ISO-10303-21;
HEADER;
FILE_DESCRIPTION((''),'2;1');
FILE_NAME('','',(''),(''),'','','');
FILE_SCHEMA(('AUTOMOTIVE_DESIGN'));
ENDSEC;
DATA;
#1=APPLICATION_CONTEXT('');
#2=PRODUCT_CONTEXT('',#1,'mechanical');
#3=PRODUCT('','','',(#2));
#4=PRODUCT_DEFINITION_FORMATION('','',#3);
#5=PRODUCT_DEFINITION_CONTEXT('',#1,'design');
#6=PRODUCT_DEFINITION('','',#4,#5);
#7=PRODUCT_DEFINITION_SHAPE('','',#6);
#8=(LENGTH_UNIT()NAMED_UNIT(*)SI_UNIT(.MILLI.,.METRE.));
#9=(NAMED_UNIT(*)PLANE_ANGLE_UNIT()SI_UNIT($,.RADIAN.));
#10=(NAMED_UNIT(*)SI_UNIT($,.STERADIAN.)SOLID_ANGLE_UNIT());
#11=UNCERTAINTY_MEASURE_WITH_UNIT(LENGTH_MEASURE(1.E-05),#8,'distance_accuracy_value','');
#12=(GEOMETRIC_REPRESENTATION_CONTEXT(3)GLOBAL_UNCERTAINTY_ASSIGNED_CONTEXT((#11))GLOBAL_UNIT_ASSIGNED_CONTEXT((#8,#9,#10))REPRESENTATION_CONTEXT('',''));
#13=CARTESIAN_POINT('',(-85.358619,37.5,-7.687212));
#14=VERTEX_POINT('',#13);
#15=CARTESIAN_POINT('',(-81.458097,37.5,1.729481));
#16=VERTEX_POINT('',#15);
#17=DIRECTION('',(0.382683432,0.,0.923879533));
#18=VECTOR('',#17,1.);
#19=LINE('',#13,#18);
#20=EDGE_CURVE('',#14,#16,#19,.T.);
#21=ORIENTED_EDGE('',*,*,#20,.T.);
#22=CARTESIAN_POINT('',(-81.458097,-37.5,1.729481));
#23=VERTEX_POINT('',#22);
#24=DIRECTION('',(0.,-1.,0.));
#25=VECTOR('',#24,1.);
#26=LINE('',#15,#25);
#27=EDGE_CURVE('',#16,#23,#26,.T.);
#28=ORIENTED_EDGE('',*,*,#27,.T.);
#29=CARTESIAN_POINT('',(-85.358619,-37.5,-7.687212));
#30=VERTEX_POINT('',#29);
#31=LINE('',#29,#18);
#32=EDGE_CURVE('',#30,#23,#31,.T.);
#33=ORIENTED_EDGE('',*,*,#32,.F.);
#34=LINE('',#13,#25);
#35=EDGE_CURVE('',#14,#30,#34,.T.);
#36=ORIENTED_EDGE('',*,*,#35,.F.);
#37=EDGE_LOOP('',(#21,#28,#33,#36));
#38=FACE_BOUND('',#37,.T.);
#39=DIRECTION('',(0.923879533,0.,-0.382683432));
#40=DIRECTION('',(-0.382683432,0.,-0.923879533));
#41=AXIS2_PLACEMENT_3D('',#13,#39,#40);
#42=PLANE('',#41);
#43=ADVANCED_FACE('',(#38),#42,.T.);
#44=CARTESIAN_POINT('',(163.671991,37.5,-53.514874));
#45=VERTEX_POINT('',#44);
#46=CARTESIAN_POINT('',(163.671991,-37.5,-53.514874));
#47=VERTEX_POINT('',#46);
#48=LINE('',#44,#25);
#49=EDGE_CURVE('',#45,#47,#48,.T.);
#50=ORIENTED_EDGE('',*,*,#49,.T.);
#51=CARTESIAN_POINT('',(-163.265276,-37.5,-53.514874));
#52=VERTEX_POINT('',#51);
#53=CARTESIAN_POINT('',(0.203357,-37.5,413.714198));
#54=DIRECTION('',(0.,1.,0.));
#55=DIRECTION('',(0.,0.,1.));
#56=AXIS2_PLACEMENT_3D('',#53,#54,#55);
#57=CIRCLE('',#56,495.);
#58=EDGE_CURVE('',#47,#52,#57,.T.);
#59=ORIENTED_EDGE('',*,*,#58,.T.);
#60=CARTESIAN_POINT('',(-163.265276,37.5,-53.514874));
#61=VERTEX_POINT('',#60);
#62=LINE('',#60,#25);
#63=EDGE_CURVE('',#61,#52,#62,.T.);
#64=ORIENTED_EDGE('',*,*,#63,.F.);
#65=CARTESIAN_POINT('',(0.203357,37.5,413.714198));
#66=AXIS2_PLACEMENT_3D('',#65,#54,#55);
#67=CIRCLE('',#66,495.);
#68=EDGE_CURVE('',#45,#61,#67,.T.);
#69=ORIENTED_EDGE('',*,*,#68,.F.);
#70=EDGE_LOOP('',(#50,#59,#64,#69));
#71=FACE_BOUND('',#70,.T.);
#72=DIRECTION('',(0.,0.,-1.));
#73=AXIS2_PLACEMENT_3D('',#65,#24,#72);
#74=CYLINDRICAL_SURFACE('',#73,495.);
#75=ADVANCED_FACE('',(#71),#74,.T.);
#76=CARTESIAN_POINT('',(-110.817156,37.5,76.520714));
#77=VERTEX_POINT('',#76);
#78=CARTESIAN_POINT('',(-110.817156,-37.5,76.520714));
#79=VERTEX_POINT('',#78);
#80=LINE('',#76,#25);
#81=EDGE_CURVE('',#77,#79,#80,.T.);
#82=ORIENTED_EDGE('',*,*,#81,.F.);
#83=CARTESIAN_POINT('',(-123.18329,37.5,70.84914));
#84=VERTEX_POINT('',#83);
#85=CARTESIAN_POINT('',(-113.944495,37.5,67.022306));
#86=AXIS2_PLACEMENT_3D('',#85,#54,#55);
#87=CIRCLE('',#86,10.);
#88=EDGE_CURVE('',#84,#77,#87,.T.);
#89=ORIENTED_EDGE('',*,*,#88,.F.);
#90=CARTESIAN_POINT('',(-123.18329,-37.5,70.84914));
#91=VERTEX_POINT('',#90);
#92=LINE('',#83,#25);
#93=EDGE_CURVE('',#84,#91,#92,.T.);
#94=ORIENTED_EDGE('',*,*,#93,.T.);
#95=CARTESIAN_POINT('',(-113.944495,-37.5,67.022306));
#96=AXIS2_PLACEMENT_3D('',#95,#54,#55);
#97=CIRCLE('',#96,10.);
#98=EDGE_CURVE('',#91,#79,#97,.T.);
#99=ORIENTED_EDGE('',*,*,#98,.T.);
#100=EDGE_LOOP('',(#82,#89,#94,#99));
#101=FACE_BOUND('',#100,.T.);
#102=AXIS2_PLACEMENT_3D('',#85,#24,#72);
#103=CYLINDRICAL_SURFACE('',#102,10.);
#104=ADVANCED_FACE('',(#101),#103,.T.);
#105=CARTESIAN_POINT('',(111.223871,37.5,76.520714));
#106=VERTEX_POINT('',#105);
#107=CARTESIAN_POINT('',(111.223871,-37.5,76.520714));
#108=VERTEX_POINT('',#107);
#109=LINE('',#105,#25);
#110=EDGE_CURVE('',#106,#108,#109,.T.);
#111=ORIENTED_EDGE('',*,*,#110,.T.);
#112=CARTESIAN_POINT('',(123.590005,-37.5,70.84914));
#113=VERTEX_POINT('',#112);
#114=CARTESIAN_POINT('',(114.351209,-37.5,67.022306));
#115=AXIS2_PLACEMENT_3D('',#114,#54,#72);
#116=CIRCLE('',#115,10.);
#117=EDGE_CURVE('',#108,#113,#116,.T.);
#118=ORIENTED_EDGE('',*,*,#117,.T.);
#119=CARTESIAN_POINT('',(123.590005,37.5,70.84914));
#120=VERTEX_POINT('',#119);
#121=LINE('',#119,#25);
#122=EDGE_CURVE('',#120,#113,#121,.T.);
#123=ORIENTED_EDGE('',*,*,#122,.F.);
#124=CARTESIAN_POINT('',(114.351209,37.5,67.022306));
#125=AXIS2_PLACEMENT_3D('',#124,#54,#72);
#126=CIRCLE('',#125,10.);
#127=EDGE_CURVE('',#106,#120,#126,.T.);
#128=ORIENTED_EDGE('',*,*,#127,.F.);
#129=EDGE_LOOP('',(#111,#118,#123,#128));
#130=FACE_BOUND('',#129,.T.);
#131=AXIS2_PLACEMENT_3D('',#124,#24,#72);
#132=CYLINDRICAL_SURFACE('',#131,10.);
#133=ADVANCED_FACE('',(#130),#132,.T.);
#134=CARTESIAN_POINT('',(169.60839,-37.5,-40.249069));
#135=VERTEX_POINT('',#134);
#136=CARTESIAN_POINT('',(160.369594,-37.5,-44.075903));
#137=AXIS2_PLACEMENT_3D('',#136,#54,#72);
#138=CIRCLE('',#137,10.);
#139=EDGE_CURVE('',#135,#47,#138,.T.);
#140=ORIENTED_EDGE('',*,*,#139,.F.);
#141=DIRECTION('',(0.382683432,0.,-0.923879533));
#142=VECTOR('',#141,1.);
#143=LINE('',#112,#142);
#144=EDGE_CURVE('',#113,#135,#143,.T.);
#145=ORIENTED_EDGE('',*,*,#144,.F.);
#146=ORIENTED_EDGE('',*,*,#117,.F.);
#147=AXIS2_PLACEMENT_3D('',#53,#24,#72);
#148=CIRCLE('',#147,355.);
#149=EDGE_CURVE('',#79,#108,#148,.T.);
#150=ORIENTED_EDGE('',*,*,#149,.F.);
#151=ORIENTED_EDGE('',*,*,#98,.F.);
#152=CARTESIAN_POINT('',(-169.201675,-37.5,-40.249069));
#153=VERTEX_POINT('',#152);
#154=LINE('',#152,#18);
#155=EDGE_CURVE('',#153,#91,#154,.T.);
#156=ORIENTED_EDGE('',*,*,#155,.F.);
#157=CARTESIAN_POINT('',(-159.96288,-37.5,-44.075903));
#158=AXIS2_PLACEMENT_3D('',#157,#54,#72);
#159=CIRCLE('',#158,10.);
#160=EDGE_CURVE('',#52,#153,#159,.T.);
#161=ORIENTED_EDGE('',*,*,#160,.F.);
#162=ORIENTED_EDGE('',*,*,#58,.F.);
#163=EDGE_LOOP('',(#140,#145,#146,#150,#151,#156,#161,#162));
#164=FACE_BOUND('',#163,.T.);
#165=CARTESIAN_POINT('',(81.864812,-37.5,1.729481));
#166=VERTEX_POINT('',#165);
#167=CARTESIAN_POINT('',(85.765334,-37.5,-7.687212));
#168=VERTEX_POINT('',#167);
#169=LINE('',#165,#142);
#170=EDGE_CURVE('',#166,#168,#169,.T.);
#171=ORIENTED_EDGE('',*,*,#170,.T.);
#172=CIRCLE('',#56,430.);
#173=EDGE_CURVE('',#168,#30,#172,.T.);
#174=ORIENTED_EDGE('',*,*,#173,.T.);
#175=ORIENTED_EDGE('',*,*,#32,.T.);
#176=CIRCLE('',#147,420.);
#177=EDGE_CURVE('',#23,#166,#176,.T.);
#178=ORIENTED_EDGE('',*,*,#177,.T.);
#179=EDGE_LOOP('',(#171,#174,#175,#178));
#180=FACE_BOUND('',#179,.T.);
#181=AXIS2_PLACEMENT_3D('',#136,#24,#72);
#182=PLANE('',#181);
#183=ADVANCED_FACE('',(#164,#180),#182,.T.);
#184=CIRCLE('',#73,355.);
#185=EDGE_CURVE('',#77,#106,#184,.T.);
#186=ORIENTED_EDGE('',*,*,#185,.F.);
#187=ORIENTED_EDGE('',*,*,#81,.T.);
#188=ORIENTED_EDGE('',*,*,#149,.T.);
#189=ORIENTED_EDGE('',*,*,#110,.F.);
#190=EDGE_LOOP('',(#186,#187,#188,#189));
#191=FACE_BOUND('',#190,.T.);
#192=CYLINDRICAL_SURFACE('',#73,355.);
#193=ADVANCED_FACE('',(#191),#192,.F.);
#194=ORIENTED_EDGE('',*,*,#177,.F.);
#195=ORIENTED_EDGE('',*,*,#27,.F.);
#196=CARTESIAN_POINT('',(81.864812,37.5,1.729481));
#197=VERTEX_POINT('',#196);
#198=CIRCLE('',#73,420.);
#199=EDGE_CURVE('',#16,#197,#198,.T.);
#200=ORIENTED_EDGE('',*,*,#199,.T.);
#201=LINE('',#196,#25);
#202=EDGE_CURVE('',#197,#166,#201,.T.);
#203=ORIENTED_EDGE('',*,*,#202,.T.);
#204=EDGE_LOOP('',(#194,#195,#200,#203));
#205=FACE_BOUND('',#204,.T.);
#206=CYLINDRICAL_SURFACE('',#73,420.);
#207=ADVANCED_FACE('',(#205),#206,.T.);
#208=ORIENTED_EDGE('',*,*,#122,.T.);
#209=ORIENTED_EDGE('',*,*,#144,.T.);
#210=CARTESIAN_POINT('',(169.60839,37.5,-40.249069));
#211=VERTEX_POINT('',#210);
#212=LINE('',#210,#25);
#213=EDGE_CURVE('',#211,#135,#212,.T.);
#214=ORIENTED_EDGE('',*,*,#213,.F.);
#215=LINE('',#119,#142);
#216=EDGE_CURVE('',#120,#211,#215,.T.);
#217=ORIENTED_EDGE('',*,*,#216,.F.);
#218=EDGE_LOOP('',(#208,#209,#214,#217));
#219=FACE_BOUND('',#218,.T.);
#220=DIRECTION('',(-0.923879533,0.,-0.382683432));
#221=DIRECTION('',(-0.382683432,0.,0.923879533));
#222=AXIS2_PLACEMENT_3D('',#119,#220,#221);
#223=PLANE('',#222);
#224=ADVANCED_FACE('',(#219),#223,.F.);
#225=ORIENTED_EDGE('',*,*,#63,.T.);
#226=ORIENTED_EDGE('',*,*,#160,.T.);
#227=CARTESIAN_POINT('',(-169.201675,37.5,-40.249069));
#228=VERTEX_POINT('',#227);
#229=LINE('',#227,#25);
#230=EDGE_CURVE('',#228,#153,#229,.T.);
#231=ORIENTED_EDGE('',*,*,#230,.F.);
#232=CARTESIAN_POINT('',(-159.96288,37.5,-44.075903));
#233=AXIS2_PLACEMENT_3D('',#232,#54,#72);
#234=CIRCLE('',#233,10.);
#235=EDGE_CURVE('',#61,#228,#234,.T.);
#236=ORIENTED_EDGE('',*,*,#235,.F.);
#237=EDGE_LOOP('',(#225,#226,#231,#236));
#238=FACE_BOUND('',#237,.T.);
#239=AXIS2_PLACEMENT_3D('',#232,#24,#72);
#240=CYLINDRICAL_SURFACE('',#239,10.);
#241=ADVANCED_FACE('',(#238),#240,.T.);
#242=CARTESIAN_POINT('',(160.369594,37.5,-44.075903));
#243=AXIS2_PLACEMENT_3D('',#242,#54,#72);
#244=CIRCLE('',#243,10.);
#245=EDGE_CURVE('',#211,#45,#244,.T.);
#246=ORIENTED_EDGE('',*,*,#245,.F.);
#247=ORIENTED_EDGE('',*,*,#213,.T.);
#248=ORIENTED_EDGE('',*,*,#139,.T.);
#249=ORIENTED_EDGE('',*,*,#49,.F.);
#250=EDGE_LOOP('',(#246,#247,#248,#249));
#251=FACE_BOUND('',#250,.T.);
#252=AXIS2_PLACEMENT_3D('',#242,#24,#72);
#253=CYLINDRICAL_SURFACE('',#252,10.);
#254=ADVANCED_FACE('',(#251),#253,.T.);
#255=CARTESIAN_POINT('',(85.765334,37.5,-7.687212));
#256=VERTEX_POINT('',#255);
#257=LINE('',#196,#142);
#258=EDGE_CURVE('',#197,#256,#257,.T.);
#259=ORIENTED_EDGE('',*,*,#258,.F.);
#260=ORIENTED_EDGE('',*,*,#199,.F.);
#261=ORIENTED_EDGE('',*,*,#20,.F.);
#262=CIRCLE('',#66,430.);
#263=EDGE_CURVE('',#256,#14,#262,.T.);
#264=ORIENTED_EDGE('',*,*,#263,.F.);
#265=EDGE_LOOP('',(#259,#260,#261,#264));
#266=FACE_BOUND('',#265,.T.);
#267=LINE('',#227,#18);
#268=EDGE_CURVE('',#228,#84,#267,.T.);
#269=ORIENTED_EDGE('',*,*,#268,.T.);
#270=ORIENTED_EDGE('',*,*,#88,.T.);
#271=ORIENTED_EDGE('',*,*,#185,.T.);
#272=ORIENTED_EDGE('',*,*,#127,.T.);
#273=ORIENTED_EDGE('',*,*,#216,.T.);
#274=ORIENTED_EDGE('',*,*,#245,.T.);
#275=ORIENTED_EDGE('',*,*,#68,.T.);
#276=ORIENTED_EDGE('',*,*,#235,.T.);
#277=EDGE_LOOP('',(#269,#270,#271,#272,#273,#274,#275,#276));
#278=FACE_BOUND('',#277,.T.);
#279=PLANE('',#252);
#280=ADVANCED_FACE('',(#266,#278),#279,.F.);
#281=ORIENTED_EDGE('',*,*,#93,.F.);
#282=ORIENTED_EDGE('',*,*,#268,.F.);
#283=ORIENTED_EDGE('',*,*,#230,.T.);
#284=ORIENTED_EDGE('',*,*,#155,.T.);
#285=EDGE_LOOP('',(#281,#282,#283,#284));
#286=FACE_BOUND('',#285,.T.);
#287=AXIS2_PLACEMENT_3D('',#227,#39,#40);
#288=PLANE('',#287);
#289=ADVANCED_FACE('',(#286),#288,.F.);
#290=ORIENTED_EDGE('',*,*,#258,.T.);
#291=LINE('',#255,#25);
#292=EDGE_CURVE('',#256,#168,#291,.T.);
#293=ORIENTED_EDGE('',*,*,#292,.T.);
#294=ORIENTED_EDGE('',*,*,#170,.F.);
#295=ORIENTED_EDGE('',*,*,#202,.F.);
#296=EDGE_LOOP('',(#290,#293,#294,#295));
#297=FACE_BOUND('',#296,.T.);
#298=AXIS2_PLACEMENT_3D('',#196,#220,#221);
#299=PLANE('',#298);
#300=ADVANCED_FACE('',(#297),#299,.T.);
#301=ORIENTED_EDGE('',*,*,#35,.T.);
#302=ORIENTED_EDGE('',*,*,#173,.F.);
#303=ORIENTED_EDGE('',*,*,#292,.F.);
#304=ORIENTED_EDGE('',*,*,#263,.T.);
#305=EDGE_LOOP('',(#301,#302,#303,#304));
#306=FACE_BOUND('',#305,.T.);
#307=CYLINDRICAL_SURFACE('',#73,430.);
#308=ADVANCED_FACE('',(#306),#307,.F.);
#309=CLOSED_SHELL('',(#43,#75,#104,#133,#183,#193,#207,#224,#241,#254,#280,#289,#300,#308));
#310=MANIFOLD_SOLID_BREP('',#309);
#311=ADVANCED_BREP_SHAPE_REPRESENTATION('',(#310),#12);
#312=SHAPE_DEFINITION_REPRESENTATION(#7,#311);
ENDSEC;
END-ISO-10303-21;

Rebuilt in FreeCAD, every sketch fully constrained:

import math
import FreeCAD as App
import Part
import Sketcher
Q = App.Units.Quantity

doc = App.newDocument("Part")
body = doc.addObject("PartDesign::Body", "Body")

sketch1 = body.newObject("Sketcher::SketchObject", "Sketch")
sketch1.AttachmentSupport = (doc.getObject("XZ_Plane"), [""])
sketch1.MapMode = "FlatFace"
sketch1.addGeometry([
    Part.LineSegment(App.Vector(-169, -40, 0), App.Vector(-123, 71, 0)),
    Part.ArcOfCircle(Part.Circle(App.Vector(-114, 67, 0), App.Vector(0, 0, 1), 10), math.radians(72), math.radians(158)),
    Part.ArcOfCircle(Part.Circle(App.Vector(0, 414, 0), App.Vector(0, 0, 1), 355), math.radians(-108), math.radians(-72)),
    Part.ArcOfCircle(Part.Circle(App.Vector(114, 67, 0), App.Vector(0, 0, 1), 10), math.radians(22), math.radians(108)),
    Part.LineSegment(App.Vector(124, 71, 0), App.Vector(170, -40, 0)),
    Part.ArcOfCircle(Part.Circle(App.Vector(160, -44, 0), App.Vector(0, 0, 1), 10), math.radians(-71), math.radians(22)),
    Part.ArcOfCircle(Part.Circle(App.Vector(0, 414, 0), App.Vector(0, 0, 1), 495), math.radians(-109), math.radians(-71)),
    Part.ArcOfCircle(Part.Circle(App.Vector(-160, -44, 0), App.Vector(0, 0, 1), 10), math.radians(158), math.radians(251)),
    Part.LineSegment(App.Vector(-81, 2, 0), App.Vector(-85, -8, 0)),
    Part.ArcOfCircle(Part.Circle(App.Vector(0, 414, 0), App.Vector(0, 0, 1), 430), math.radians(-101), math.radians(-79)),
    Part.LineSegment(App.Vector(86, -8, 0), App.Vector(82, 2, 0)),
    Part.ArcOfCircle(Part.Circle(App.Vector(0, 414, 0), App.Vector(0, 0, 1), 420), math.radians(-101), math.radians(-79)),
], False)
sketch1.addConstraint([
    Sketcher.Constraint("Tangent", 0, 2, 1, 2),
    Sketcher.Constraint("Tangent", 1, 1, 2, 1),
    Sketcher.Constraint("Tangent", 2, 2, 3, 2),
    Sketcher.Constraint("Tangent", 3, 1, 4, 1),
    Sketcher.Constraint("Tangent", 4, 2, 5, 2),
    Sketcher.Constraint("Tangent", 5, 1, 6, 2),
    Sketcher.Constraint("Tangent", 6, 1, 7, 2),
    Sketcher.Constraint("Tangent", 7, 1, 0, 1),
    Sketcher.Constraint("Coincident", 8, 2, 9, 1),
    Sketcher.Constraint("Coincident", 9, 2, 10, 1),
    Sketcher.Constraint("Coincident", 10, 2, 11, 2),
    Sketcher.Constraint("Coincident", 11, 1, 8, 1),
    Sketcher.Constraint("Coincident", 6, 3, 2, 3),
    Sketcher.Constraint("Coincident", 9, 3, 2, 3),
    Sketcher.Constraint("Coincident", 11, 3, 2, 3),
    Sketcher.Constraint("Equal", 1, 3),
    Sketcher.Constraint("Equal", 3, 5),
    Sketcher.Constraint("Equal", 5, 7),
    Sketcher.Constraint("Parallel", 0, 8),
    Sketcher.Constraint("Parallel", 4, 10),
    Sketcher.Constraint("Horizontal", 1, 3, 3, 3),
    Sketcher.Constraint("Horizontal", 5, 3, 7, 3),
    Sketcher.Constraint("Horizontal", 8, 2, 9, 2),
    Sketcher.Constraint("Radius", 1, Q("10 mm")),
    Sketcher.Constraint("Radius", 2, Q("355 mm")),
    Sketcher.Constraint("Radius", 6, Q("495 mm")),
    Sketcher.Constraint("Radius", 9, Q("430 mm")),
    Sketcher.Constraint("Radius", 11, Q("420 mm")),
    Sketcher.Constraint("Angle", 0, Q("67.5 deg")),
    Sketcher.Constraint("DistanceY", 5, 3, 2, 3, Q("457.790101 mm")),
    Sketcher.Constraint("DistanceX", -1, 1, 3, 3, Q("114.351209 mm")),
    Sketcher.Constraint("DistanceY", -1, 1, 0, 2, Q("70.84914 mm")),
    Sketcher.Constraint("DistanceX", 8, 2, -1, 1, Q("85.358619 mm")),
])
pad1 = body.newObject("PartDesign::Pad", "Pad")
pad1.Profile = sketch1
pad1.Length = 75
pad1.Midplane = True

doc.recompute()
